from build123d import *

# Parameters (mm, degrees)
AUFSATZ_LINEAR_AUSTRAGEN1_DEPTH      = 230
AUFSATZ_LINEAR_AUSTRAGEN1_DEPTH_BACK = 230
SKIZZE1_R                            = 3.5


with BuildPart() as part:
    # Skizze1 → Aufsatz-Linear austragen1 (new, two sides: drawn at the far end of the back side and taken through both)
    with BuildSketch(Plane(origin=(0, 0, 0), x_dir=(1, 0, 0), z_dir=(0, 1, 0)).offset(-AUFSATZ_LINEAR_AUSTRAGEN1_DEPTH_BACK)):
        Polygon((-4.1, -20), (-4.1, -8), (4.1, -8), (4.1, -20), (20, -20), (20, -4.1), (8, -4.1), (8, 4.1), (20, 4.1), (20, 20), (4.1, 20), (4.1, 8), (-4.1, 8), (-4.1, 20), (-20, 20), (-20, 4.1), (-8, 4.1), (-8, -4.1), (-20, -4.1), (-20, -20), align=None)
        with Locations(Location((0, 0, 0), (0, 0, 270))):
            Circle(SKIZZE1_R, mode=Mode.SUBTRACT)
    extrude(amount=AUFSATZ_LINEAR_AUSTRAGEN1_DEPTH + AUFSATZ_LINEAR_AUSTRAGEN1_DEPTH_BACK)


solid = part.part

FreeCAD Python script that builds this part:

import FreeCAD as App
import Part
import Sketcher

V = App.Vector
Q = App.Units.Quantity

doc = App.newDocument("Part")
body = doc.addObject("PartDesign::Body", "Body")

# Sketch on XZ plane
sketch1 = doc.addObject("Sketcher::SketchObject", "Sketch")
body.addObject(sketch1)
sketch1.AttachmentSupport = (doc.XZ_Plane, [""])
sketch1.MapMode = "FlatFace"
sketch1.addGeometry([
    Part.LineSegment(V(-4.1, 20, 0), V(-4.1, 8, 0)),  # 0
    Part.LineSegment(V(-4.1, 8, 0), V(4.1, 8, 0)),  # 1
    Part.LineSegment(V(4.1, 8, 0), V(4.1, 20, 0)),  # 2
    Part.LineSegment(V(4.1, 20, 0), V(20, 20, 0)),  # 3
    Part.LineSegment(V(20, 20, 0), V(20, 4.1, 0)),  # 4
    Part.LineSegment(V(20, 4.1, 0), V(8, 4.1, 0)),  # 5
    Part.LineSegment(V(8, 4.1, 0), V(8, -4.1, 0)),  # 6
    Part.LineSegment(V(8, -4.1, 0), V(20, -4.1, 0)),  # 7
    Part.LineSegment(V(20, -4.1, 0), V(20, -20, 0)),  # 8
    Part.LineSegment(V(20, -20, 0), V(4.1, -20, 0)),  # 9
    Part.LineSegment(V(4.1, -20, 0), V(4.1, -8, 0)),  # 10
    Part.LineSegment(V(4.1, -8, 0), V(-4.1, -8, 0)),  # 11
    Part.LineSegment(V(-4.1, -8, 0), V(-4.1, -20, 0)),  # 12
    Part.LineSegment(V(-4.1, -20, 0), V(-20, -20, 0)),  # 13
    Part.LineSegment(V(-20, -20, 0), V(-20, -4.1, 0)),  # 14
    Part.LineSegment(V(-20, -4.1, 0), V(-8, -4.1, 0)),  # 15
    Part.LineSegment(V(-8, -4.1, 0), V(-8, 4.1, 0)),  # 16
    Part.LineSegment(V(-8, 4.1, 0), V(-20, 4.1, 0)),  # 17
    Part.LineSegment(V(-20, 4.1, 0), V(-20, 20, 0)),  # 18
    Part.LineSegment(V(-20, 20, 0), V(-4.1, 20, 0)),  # 19
    Part.Circle(V(0, 0, 0), V(0, 0, 1), 3.5),  # 20
], False)
sketch1.addConstraint([
    Sketcher.Constraint("Coincident", 0, 2, 1, 1),
    Sketcher.Constraint("Coincident", 1, 2, 2, 1),
    Sketcher.Constraint("Coincident", 2, 2, 3, 1),
    Sketcher.Constraint("Coincident", 3, 2, 4, 1),
    Sketcher.Constraint("Coincident", 4, 2, 5, 1),
    Sketcher.Constraint("Coincident", 5, 2, 6, 1),
    Sketcher.Constraint("Coincident", 6, 2, 7, 1),
    Sketcher.Constraint("Coincident", 7, 2, 8, 1),
    Sketcher.Constraint("Coincident", 8, 2, 9, 1),
    Sketcher.Constraint("Coincident", 9, 2, 10, 1),
    Sketcher.Constraint("Coincident", 10, 2, 11, 1),
    Sketcher.Constraint("Coincident", 11, 2, 12, 1),
    Sketcher.Constraint("Coincident", 12, 2, 13, 1),
    Sketcher.Constraint("Coincident", 13, 2, 14, 1),
    Sketcher.Constraint("Coincident", 14, 2, 15, 1),
    Sketcher.Constraint("Coincident", 15, 2, 16, 1),
    Sketcher.Constraint("Coincident", 16, 2, 17, 1),
    Sketcher.Constraint("Coincident", 17, 2, 18, 1),
    Sketcher.Constraint("Coincident", 18, 2, 19, 1),
    Sketcher.Constraint("Coincident", 19, 2, 0, 1),
    Sketcher.Constraint("Vertical", 0),
    Sketcher.Constraint("Horizontal", 1),
    Sketcher.Constraint("Vertical", 2),
    Sketcher.Constraint("Horizontal", 3),
    Sketcher.Constraint("Vertical", 4),
    Sketcher.Constraint("Horizontal", 5),
    Sketcher.Constraint("Vertical", 6),
    Sketcher.Constraint("Horizontal", 7),
    Sketcher.Constraint("Vertical", 8),
    Sketcher.Constraint("Horizontal", 9),
    Sketcher.Constraint("Vertical", 10),
    Sketcher.Constraint("Horizontal", 11),
    Sketcher.Constraint("Vertical", 12),
    Sketcher.Constraint("Horizontal", 13),
    Sketcher.Constraint("Vertical", 14),
    Sketcher.Constraint("Horizontal", 15),
    Sketcher.Constraint("Vertical", 16),
    Sketcher.Constraint("Horizontal", 17),
    Sketcher.Constraint("Vertical", 18),
    Sketcher.Constraint("Horizontal", 19),
    Sketcher.Constraint("Coincident", 20, 3, -1, 1),
    Sketcher.Constraint("Symmetric", 0, 2, 10, 2, -1, 1),
    Sketcher.Constraint("Symmetric", 2, 2, 12, 2, -1, 1),
    Sketcher.Constraint("Symmetric", 4, 2, 14, 2, -1, 1),
    Sketcher.Constraint("Symmetric", 6, 2, 16, 2, -1, 1),
    Sketcher.Constraint("Symmetric", 8, 2, 18, 2, -1, 1),
    Sketcher.Constraint("Symmetric", 9, 2, 12, 2, -2),
    Sketcher.Constraint("Symmetric", 7, 2, 14, 2, -2),
    Sketcher.Constraint("Equal", 17, 0),
    Sketcher.Constraint("Equal", 19, 4),
    Sketcher.Constraint("Equal", 11, 6),
    Sketcher.Constraint("Diameter", 20, Q("7 mm")),
    Sketcher.Constraint("DistanceX", 5, 2, 5, 1, Q("12 mm")),
    Sketcher.Constraint("DistanceX", 1, 1, 1, 2, Q("8.2 mm")),
    Sketcher.Constraint("DistanceX", 3, 1, 3, 2, Q("15.9 mm")),
])
pad1 = doc.addObject("PartDesign::Pad", "Pad")
body.addObject(pad1)
pad1.Profile = sketch1
pad1.Type = "TwoLengths"
pad1.Length = 230
pad1.Length2 = 230
pad1.Reversed = True

doc.recompute()
